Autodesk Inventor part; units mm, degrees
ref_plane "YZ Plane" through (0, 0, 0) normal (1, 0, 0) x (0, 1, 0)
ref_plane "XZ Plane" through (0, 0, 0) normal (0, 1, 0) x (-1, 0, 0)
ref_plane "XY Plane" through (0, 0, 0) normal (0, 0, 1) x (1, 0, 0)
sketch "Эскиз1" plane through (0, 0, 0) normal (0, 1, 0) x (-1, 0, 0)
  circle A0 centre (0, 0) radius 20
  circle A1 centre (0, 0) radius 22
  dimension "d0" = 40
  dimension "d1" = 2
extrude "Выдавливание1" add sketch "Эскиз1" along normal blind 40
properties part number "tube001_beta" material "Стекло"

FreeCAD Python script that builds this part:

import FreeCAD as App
import Part
import Sketcher
Q = App.Units.Quantity

doc = App.newDocument("Part")
body = doc.addObject("PartDesign::Body", "Body")

sketch1 = body.newObject("Sketcher::SketchObject", "Sketch")
sketch1.AttachmentSupport = (doc.getObject("XZ_Plane"), [""])
sketch1.MapMode = "FlatFace"
sketch1.addGeometry([
    Part.Circle(App.Vector(0, 0, 0), App.Vector(0, 0, 1), 22),
    Part.Circle(App.Vector(0, 0, 0), App.Vector(0, 0, 1), 20),
], False)
sketch1.addConstraint([
    Sketcher.Constraint("Coincident", 0, 3, -1, 1),
    Sketcher.Constraint("Coincident", 1, 3, -1, 1),
    Sketcher.Constraint("Diameter", 1, Q("40 mm")),
    Sketcher.Constraint("Diameter", 0, Q("44 mm")),
])
pad1 = body.newObject("PartDesign::Pad", "Pad")
pad1.Profile = sketch1
pad1.Length = 40
pad1.Reversed = True

doc.recompute()
